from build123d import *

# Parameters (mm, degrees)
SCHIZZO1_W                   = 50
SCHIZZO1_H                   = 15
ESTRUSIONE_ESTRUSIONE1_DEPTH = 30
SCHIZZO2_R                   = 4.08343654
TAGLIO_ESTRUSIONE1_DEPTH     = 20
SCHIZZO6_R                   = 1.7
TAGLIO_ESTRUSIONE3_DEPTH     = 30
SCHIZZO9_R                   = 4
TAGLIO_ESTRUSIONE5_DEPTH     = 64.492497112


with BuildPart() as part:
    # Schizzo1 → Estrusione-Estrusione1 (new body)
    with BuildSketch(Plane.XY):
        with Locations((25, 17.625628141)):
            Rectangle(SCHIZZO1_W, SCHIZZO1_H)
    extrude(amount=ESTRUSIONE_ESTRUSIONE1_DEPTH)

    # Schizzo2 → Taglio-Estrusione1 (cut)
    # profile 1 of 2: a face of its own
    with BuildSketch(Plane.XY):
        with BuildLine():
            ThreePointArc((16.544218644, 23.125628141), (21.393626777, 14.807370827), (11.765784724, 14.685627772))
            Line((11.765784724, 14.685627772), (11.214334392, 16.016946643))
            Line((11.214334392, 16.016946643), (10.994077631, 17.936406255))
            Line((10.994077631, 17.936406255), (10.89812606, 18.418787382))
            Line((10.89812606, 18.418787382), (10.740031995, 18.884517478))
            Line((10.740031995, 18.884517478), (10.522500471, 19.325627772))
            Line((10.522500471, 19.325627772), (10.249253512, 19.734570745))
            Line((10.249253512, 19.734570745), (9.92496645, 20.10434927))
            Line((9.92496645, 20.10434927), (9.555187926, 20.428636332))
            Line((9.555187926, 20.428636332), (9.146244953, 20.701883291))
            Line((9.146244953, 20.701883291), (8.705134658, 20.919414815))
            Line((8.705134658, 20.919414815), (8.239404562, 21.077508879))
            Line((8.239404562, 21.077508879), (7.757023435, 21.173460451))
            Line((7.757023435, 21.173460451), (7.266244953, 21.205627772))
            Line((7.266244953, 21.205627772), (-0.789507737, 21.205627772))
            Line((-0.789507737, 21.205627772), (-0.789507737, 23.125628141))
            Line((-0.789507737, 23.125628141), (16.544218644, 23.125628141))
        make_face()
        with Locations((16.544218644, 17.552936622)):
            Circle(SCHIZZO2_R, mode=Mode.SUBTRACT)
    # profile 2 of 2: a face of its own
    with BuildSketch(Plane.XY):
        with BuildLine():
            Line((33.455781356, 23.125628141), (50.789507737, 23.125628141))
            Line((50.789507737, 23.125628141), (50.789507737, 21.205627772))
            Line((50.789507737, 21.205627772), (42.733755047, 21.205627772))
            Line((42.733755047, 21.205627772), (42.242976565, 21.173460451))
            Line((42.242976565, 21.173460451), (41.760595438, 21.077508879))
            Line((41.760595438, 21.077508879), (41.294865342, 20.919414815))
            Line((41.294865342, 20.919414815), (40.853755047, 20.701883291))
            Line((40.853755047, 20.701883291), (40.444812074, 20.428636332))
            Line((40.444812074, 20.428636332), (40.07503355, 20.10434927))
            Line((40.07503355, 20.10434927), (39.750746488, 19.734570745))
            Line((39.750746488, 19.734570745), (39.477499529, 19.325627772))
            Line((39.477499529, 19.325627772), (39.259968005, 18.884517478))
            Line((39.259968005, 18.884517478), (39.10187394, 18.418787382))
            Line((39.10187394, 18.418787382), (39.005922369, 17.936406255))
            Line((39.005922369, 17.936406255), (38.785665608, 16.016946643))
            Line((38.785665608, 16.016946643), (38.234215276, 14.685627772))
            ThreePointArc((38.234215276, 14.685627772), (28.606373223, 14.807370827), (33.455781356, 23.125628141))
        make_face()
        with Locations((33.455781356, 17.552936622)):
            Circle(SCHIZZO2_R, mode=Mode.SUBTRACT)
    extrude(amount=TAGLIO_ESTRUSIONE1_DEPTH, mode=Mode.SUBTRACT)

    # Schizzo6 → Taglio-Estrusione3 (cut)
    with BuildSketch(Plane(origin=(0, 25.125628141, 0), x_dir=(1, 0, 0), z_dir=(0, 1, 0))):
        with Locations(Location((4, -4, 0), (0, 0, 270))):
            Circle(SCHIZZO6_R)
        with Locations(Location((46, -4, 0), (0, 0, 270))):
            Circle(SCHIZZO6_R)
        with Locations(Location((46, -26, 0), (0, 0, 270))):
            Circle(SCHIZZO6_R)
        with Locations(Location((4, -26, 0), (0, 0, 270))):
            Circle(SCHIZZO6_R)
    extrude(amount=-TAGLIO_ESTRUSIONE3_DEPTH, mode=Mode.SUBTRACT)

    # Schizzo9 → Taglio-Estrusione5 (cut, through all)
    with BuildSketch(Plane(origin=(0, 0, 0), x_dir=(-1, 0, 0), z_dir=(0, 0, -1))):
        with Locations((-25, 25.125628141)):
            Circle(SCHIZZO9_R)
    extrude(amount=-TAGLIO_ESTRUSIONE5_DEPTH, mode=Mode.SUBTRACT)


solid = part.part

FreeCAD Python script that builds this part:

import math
import FreeCAD as App
import Part
import Sketcher
from FreeCAD import Vector
Q = App.Units.Quantity


def add_polygon(sketch, points):
    """Adds a closed chain of lines whose ends are joined by coincident constraints."""
    first, n = sketch.GeometryCount, len(points)
    for a, b in zip(points, points[1:] + points[:1]):
        sketch.addGeometry(Part.LineSegment(App.Vector(*a, 0), App.Vector(*b, 0)), False)
    for i in range(n):
        sketch.addConstraint(Sketcher.Constraint("Coincident", first + i, 2, first + (i + 1) % n, 1))

doc = App.newDocument("Part")
body = doc.addObject("PartDesign::Body", "Body")

# Sketch on XY plane
sketch1 = body.newObject("Sketcher::SketchObject", "Sketch")
sketch1.AttachmentSupport = (doc.getObject("XY_Plane"), [""])
sketch1.MapMode = "FlatFace"
add_polygon(sketch1, [(0, 25.125628), (0, 10.125628), (50, 10.125628), (50, 25.125628)])  # lines 0-3
sketch1.addConstraint([
    Sketcher.Constraint("Vertical", 0),
    Sketcher.Constraint("Horizontal", 1),
    Sketcher.Constraint("Vertical", 2),
    Sketcher.Constraint("Horizontal", 3),
    Sketcher.Constraint("PointOnObject", 0, 2, -2),
    Sketcher.Constraint("DistanceX", 1, 1, 1, 2, Q("50 mm")),
    Sketcher.Constraint("DistanceY", 0, 2, 0, 1, Q("15 mm")),
    Sketcher.Constraint("DistanceY", -1, 1, 0, 2, Q("10.125628 mm")),
])
pad1 = body.newObject("PartDesign::Pad", "Pad")
pad1.Profile = sketch1
pad1.Length = 30

# Sketch on XY plane
sketch2 = body.newObject("Sketcher::SketchObject", "Sketch001")
sketch2.AttachmentSupport = (doc.getObject("XY_Plane"), [""])
sketch2.MapMode = "FlatFace"
sketch2.addGeometry([
    Part.ArcOfCircle(Part.Circle(Vector(16.544219, 17.552937, 0), Vector(0, 0, 1), 5.572692), math.radians(-149.034053), math.radians(90)),  # 0
    Part.LineSegment(Vector(16.544219, 23.125628, 0), Vector(-0.789508, 23.125628, 0)),  # 1
    Part.LineSegment(Vector(-0.789508, 23.125628, 0), Vector(-0.789508, 21.205628, 0)),  # 2
    Part.LineSegment(Vector(-0.789508, 21.205628, 0), Vector(7.266245, 21.205628, 0)),  # 3
    Part.LineSegment(Vector(7.266245, 21.205628, 0), Vector(7.757023, 21.17346, 0)),  # 4
    Part.LineSegment(Vector(7.757023, 21.17346, 0), Vector(8.239405, 21.077509, 0)),  # 5
    Part.LineSegment(Vector(8.239405, 21.077509, 0), Vector(8.705135, 20.919415, 0)),  # 6
    Part.LineSegment(Vector(8.705135, 20.919415, 0), Vector(9.146245, 20.701883, 0)),  # 7
    Part.LineSegment(Vector(9.146245, 20.701883, 0), Vector(9.555188, 20.428636, 0)),  # 8
    Part.LineSegment(Vector(9.555188, 20.428636, 0), Vector(9.924966, 20.104349, 0)),  # 9
    Part.LineSegment(Vector(9.924966, 20.104349, 0), Vector(10.249254, 19.734571, 0)),  # 10
    Part.LineSegment(Vector(10.249254, 19.734571, 0), Vector(10.5225, 19.325628, 0)),  # 11
    Part.LineSegment(Vector(10.5225, 19.325628, 0), Vector(10.740032, 18.884517, 0)),  # 12
    Part.LineSegment(Vector(10.740032, 18.884517, 0), Vector(10.898126, 18.418787, 0)),  # 13
    Part.LineSegment(Vector(10.898126, 18.418787, 0), Vector(10.994078, 17.936406, 0)),  # 14
    Part.LineSegment(Vector(10.994078, 17.936406, 0), Vector(11.214334, 16.016947, 0)),  # 15
    Part.LineSegment(Vector(11.214334, 16.016947, 0), Vector(11.765785, 14.685628, 0)),  # 16
    Part.Circle(Vector(16.544219, 17.552937, 0), Vector(0, 0, 1), 4.083437),  # 17
    Part.LineSegment(Vector(50.789508, 23.125628, 0), Vector(33.455781, 23.125628, 0)),  # 18
    Part.ArcOfCircle(Part.Circle(Vector(33.455781, 17.552937, 0), Vector(0, 0, 1), 5.572692), math.radians(90), math.radians(329.034053)),  # 19
    Part.LineSegment(Vector(38.234215, 14.685628, 0), Vector(38.785666, 16.016947, 0)),  # 20
    Part.LineSegment(Vector(38.785666, 16.016947, 0), Vector(39.005922, 17.936406, 0)),  # 21
    Part.LineSegment(Vector(39.005922, 17.936406, 0), Vector(39.101874, 18.418787, 0)),  # 22
    Part.LineSegment(Vector(39.101874, 18.418787, 0), Vector(39.259968, 18.884517, 0)),  # 23
    Part.LineSegment(Vector(39.259968, 18.884517, 0), Vector(39.4775, 19.325628, 0)),  # 24
    Part.LineSegment(Vector(39.4775, 19.325628, 0), Vector(39.750746, 19.734571, 0)),  # 25
    Part.LineSegment(Vector(39.750746, 19.734571, 0), Vector(40.075034, 20.104349, 0)),  # 26
    Part.LineSegment(Vector(40.075034, 20.104349, 0), Vector(40.444812, 20.428636, 0)),  # 27
    Part.LineSegment(Vector(40.444812, 20.428636, 0), Vector(40.853755, 20.701883, 0)),  # 28
    Part.LineSegment(Vector(40.853755, 20.701883, 0), Vector(41.294865, 20.919415, 0)),  # 29
    Part.LineSegment(Vector(41.294865, 20.919415, 0), Vector(41.760595, 21.077509, 0)),  # 30
    Part.LineSegment(Vector(41.760595, 21.077509, 0), Vector(42.242977, 21.17346, 0)),  # 31
    Part.LineSegment(Vector(42.242977, 21.17346, 0), Vector(42.733755, 21.205628, 0)),  # 32
    Part.LineSegment(Vector(42.733755, 21.205628, 0), Vector(50.789508, 21.205628, 0)),  # 33
    Part.LineSegment(Vector(50.789508, 21.205628, 0), Vector(50.789508, 23.125628, 0)),  # 34
    Part.Circle(Vector(33.455781, 17.552937, 0), Vector(0, 0, 1), 4.083437),  # 35
], False)
sketch2.addConstraint([
    Sketcher.Constraint("Tangent", 0, 2, 1, 1),
    Sketcher.Constraint("Coincident", 1, 2, 2, 1),
    Sketcher.Constraint("Coincident", 2, 2, 3, 1),
    Sketcher.Constraint("Coincident", 3, 2, 4, 1),
    Sketcher.Constraint("Coincident", 4, 2, 5, 1),
    Sketcher.Constraint("Coincident", 5, 2, 6, 1),
    Sketcher.Constraint("Coincident", 6, 2, 7, 1),
    Sketcher.Constraint("Coincident", 7, 2, 8, 1),
    Sketcher.Constraint("Coincident", 8, 2, 9, 1),
    Sketcher.Constraint("Coincident", 9, 2, 10, 1),
    Sketcher.Constraint("Coincident", 10, 2, 11, 1),
    Sketcher.Constraint("Coincident", 11, 2, 12, 1),
    Sketcher.Constraint("Coincident", 12, 2, 13, 1),
    Sketcher.Constraint("Coincident", 13, 2, 14, 1),
    Sketcher.Constraint("Coincident", 14, 2, 15, 1),
    Sketcher.Constraint("Coincident", 15, 2, 16, 1),
    Sketcher.Constraint("Coincident", 16, 2, 0, 1),
    Sketcher.Constraint("Tangent", 18, 2, 19, 1),
    Sketcher.Constraint("Coincident", 19, 2, 20, 1),
    Sketcher.Constraint("Coincident", 20, 2, 21, 1),
    Sketcher.Constraint("Coincident", 21, 2, 22, 1),
    Sketcher.Constraint("Coincident", 22, 2, 23, 1),
    Sketcher.Constraint("Coincident", 23, 2, 24, 1),
    Sketcher.Constraint("Coincident", 24, 2, 25, 1),
    Sketcher.Constraint("Coincident", 25, 2, 26, 1),
    Sketcher.Constraint("Coincident", 26, 2, 27, 1),
    Sketcher.Constraint("Coincident", 27, 2, 28, 1),
    Sketcher.Constraint("Coincident", 28, 2, 29, 1),
    Sketcher.Constraint("Coincident", 29, 2, 30, 1),
    Sketcher.Constraint("Coincident", 30, 2, 31, 1),
    Sketcher.Constraint("Coincident", 31, 2, 32, 1),
    Sketcher.Constraint("Coincident", 32, 2, 33, 1),
    Sketcher.Constraint("Coincident", 33, 2, 34, 1),
    Sketcher.Constraint("Coincident", 34, 2, 18, 1),
    Sketcher.Constraint("Horizontal", 1),
    Sketcher.Constraint("Vertical", 2),
    Sketcher.Constraint("Horizontal", 3),
    Sketcher.Constraint("Horizontal", 18),
    Sketcher.Constraint("Horizontal", 33),
    Sketcher.Constraint("Vertical", 34),
    Sketcher.Constraint("Coincident", 17, 3, 0, 3),
    Sketcher.Constraint("Coincident", 35, 3, 19, 3),
    Sketcher.Constraint("Equal", 0, 19),
    Sketcher.Constraint("Equal", 17, 35),
    Sketcher.Constraint("Perpendicular", 5, 22),
    Sketcher.Constraint("Perpendicular", 6, 23),
    Sketcher.Constraint("Perpendicular", 7, 24),
    Sketcher.Constraint("Perpendicular", 8, 25),
    Sketcher.Constraint("Perpendicular", 9, 26),
    Sketcher.Constraint("Perpendicular", 10, 27),
    Sketcher.Constraint("Perpendicular", 11, 28),
    Sketcher.Constraint("Perpendicular", 12, 29),
    Sketcher.Constraint("Perpendicular", 13, 30),
    Sketcher.Constraint("Perpendicular", 14, 31),
    Sketcher.Constraint("Horizontal", 17, 3, 19, 3),
    Sketcher.Constraint("Horizontal", 16, 2, 19, 2),
    Sketcher.Constraint("Horizontal", 15, 2, 20, 2),
    Sketcher.Constraint("Horizontal", 14, 2, 21, 2),
    Sketcher.Constraint("Horizontal", 13, 2, 22, 2),
    Sketcher.Constraint("Horizontal", 12, 2, 23, 2),
    Sketcher.Constraint("Horizontal", 11, 2, 24, 2),
    Sketcher.Constraint("Horizontal", 10, 2, 25, 2),
    Sketcher.Constraint("Horizontal", 9, 2, 26, 2),
    Sketcher.Constraint("Horizontal", 8, 2, 27, 2),
    Sketcher.Constraint("Horizontal", 7, 2, 28, 2),
    Sketcher.Constraint("Horizontal", 6, 2, 29, 2),
    Sketcher.Constraint("Horizontal", 5, 2, 30, 2),
    Sketcher.Constraint("Horizontal", 4, 2, 31, 2),
    Sketcher.Constraint("Horizontal", 3, 2, 32, 2),
    Sketcher.Constraint("Equal", 1, 18),
    Sketcher.Constraint("Equal", 3, 33),
    Sketcher.Constraint("Equal", 4, 5),
    Sketcher.Constraint("Equal", 5, 6),
    Sketcher.Constraint("Equal", 6, 7),
    Sketcher.Constraint("Equal", 7, 8),
    Sketcher.Constraint("Equal", 8, 9),
    Sketcher.Constraint("Equal", 9, 10),
    Sketcher.Constraint("Equal", 10, 11),
    Sketcher.Constraint("Equal", 11, 12),
    Sketcher.Constraint("Equal", 12, 13),
    Sketcher.Constraint("Equal", 13, 14),
    Sketcher.Constraint("Equal", 16, 20),
    Sketcher.Constraint("Equal", 15, 21),
    Sketcher.Constraint("Equal", 14, 22),
    Sketcher.Constraint("Equal", 22, 23),
    Sketcher.Constraint("Equal", 23, 24),
    Sketcher.Constraint("Equal", 24, 25),
    Sketcher.Constraint("Equal", 25, 26),
    Sketcher.Constraint("Angle", 16, Q("-67.5 deg")),
    Sketcher.Constraint("DistanceY", 2, 2, 2, 1, Q("1.92 mm")),
    Sketcher.Constraint("Angle", 4, Q("-3.75 deg")),
    Sketcher.Constraint("Angle", 5, Q("-11.25 deg")),
    Sketcher.Constraint("Angle", 6, Q("-18.75 deg")),
    Sketcher.Constraint("Angle", 7, Q("-26.25 deg")),
    Sketcher.Constraint("Angle", 8, Q("-33.75 deg")),
    Sketcher.Constraint("Angle", 9, Q("-41.25 deg")),
    Sketcher.Constraint("Radius", 0, Q("5.572692 mm")),
    Sketcher.Constraint("DistanceX", 3, 2, 7, 2, Q("1.88 mm")),
    Sketcher.Constraint("DistanceY", 16, 2, 11, 2, Q("4.64 mm")),
    Sketcher.Constraint("Diameter", 17, Q("8.166873 mm")),
    Sketcher.Constraint("DistanceX", -1, 1, 11, 2, Q("10.5225 mm")),
    Sketcher.Constraint("DistanceX", -1, 1, 24, 2, Q("39.4775 mm")),
    Sketcher.Constraint("Distance", 16, Q("1.441009 mm")),
    Sketcher.Constraint("DistanceX", 1, 2, 1, 1, Q("17.333726 mm")),
    Sketcher.Constraint("DistanceX", 3, 1, 3, 2, Q("8.055753 mm")),
    Sketcher.Constraint("DistanceY", -1, 1, 0, 2, Q("23.125628 mm")),
])
pocket1 = body.newObject("PartDesign::Pocket", "Pocket")
pocket1.Profile = sketch2
pocket1.Length = 20
pocket1.Reversed = True

# Sketch on XZ plane
sketch3 = body.newObject("Sketcher::SketchObject", "Sketch002")
sketch3.AttachmentSupport = (doc.getObject("XZ_Plane"), [""])
sketch3.MapMode = "FlatFace"
sketch3.AttachmentOffset = App.Placement(Vector(0, 0, -25.125628), App.Rotation())
sketch3.addGeometry([
    Part.Circle(Vector(4, 4, 0), Vector(0, 0, 1), 1.7),
    Part.Circle(Vector(46, 4, 0), Vector(0, 0, 1), 1.7),
    Part.Circle(Vector(46, 26, 0), Vector(0, 0, 1), 1.7),
    Part.Circle(Vector(4, 26, 0), Vector(0, 0, 1), 1.7),
], False)
sketch3.addConstraint([
    Sketcher.Constraint("Equal", 0, 1),
    Sketcher.Constraint("Equal", 1, 2),
    Sketcher.Constraint("Equal", 2, 3),
    Sketcher.Constraint("Horizontal", 0, 3, 1, 3),
    Sketcher.Constraint("Horizontal", 2, 3, 3, 3),
    Sketcher.Constraint("Vertical", 1, 3, 2, 3),
    Sketcher.Constraint("Vertical", 0, 3, 3, 3),
    Sketcher.Constraint("Diameter", 0, Q("3.4 mm")),
    Sketcher.Constraint("DistanceX", -1, 1, 0, 3, Q("4 mm")),
    Sketcher.Constraint("DistanceY", -1, 1, 0, 3, Q("4 mm")),
    Sketcher.Constraint("DistanceX", -1, 1, 1, 3, Q("46 mm")),
    Sketcher.Constraint("DistanceY", -1, 1, 2, 3, Q("26 mm")),
])
pocket2 = body.newObject("PartDesign::Pocket", "Pocket001")
pocket2.Profile = sketch3
pocket2.Length = 30
pocket2.Reversed = True

# Sketch on XY plane
sketch4 = body.newObject("Sketcher::SketchObject", "Sketch003")
sketch4.AttachmentSupport = (doc.getObject("XY_Plane"), [""])
sketch4.MapMode = "FlatFace"
sketch4.addGeometry(Part.Circle(Vector(25, 25.125628, 0), Vector(0, 0, 1), 4), False)
sketch4.addConstraint([
    Sketcher.Constraint("Diameter", 0, Q("8 mm")),
    Sketcher.Constraint("DistanceX", -1, 1, 0, 3, Q("25 mm")),
    Sketcher.Constraint("DistanceY", -1, 1, 0, 3, Q("25.125628 mm")),
])
pocket3 = body.newObject("PartDesign::Pocket", "Pocket002")
pocket3.Profile = sketch4
pocket3.Type = "ThroughAll"
pocket3.Reversed = True

doc.recompute()
